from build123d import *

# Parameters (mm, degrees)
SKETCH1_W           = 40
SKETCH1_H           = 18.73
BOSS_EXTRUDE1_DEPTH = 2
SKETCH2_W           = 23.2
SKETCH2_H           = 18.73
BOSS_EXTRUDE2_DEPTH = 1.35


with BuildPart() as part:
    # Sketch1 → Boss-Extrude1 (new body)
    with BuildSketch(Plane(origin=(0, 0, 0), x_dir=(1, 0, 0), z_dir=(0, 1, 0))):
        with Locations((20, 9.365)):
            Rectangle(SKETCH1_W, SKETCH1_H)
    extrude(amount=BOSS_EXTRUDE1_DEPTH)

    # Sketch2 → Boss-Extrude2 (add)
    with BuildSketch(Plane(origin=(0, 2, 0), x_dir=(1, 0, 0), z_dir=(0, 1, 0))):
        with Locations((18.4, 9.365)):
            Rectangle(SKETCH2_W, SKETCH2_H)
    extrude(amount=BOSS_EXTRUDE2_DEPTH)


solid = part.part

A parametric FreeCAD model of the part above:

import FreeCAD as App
import Part
import Sketcher

V = App.Vector
Q = App.Units.Quantity

doc = App.newDocument("Part")
body = doc.addObject("PartDesign::Body", "Body")

sketch1 = body.newObject("Sketcher::SketchObject", "Sketch")
sketch1.AttachmentSupport = (doc.getObject("XZ_Plane"), [""])
sketch1.MapMode = "FlatFace"
sketch1.addGeometry([
    Part.LineSegment(V(0, -19, 0), V(0, 0, 0)),
    Part.LineSegment(V(0, 0, 0), V(40, 0, 0)),
    Part.LineSegment(V(40, 0, 0), V(40, -19, 0)),
    Part.LineSegment(V(40, -19, 0), V(0, -19, 0)),
], False)
sketch1.addConstraint([
    Sketcher.Constraint("Coincident", 0, 2, 1, 1),
    Sketcher.Constraint("Coincident", 1, 2, 2, 1),
    Sketcher.Constraint("Coincident", 2, 2, 3, 1),
    Sketcher.Constraint("Coincident", 3, 2, 0, 1),
    Sketcher.Constraint("Vertical", 0),
    Sketcher.Constraint("Horizontal", 1),
    Sketcher.Constraint("Vertical", 2),
    Sketcher.Constraint("Horizontal", 3),
    Sketcher.Constraint("Coincident", 0, 2, -1, 1),
    Sketcher.Constraint("DistanceX", 1, 1, 1, 2, Q("40 mm")),
    Sketcher.Constraint("DistanceY", 0, 1, 0, 2, Q("18.73 mm")),
])
pad1 = body.newObject("PartDesign::Pad", "Pad")
pad1.Profile = sketch1
pad1.Length = 2
pad1.Reversed = True

sketch2 = body.newObject("Sketcher::SketchObject", "Sketch001")
sketch2.AttachmentSupport = (doc.getObject("XZ_Plane"), [""])
sketch2.MapMode = "FlatFace"
sketch2.AttachmentOffset = App.Placement(V(0, 0, -2), App.Rotation())
sketch2.addGeometry([
    Part.LineSegment(V(7, -19, 0), V(7, 0, 0)),
    Part.LineSegment(V(7, 0, 0), V(30, 0, 0)),
    Part.LineSegment(V(30, 0, 0), V(30, -19, 0)),
    Part.LineSegment(V(30, -19, 0), V(7, -19, 0)),
], False)
sketch2.addConstraint([
    Sketcher.Constraint("Coincident", 0, 2, 1, 1),
    Sketcher.Constraint("Coincident", 1, 2, 2, 1),
    Sketcher.Constraint("Coincident", 2, 2, 3, 1),
    Sketcher.Constraint("Coincident", 3, 2, 0, 1),
    Sketcher.Constraint("Vertical", 0),
    Sketcher.Constraint("Horizontal", 1),
    Sketcher.Constraint("Vertical", 2),
    Sketcher.Constraint("Horizontal", 3),
    Sketcher.Constraint("PointOnObject", 0, 2, -1),
    Sketcher.Constraint("DistanceX", 1, 1, 1, 2, Q("23.2 mm")),
    Sketcher.Constraint("DistanceX", -1, 1, 1, 2, Q("30 mm")),
    Sketcher.Constraint("DistanceY", 0, 1, 0, 2, Q("18.73 mm")),
])
pad2 = body.newObject("PartDesign::Pad", "Pad001")
pad2.Profile = sketch2
pad2.Length = 1.35
pad2.Reversed = True

doc.recompute()
